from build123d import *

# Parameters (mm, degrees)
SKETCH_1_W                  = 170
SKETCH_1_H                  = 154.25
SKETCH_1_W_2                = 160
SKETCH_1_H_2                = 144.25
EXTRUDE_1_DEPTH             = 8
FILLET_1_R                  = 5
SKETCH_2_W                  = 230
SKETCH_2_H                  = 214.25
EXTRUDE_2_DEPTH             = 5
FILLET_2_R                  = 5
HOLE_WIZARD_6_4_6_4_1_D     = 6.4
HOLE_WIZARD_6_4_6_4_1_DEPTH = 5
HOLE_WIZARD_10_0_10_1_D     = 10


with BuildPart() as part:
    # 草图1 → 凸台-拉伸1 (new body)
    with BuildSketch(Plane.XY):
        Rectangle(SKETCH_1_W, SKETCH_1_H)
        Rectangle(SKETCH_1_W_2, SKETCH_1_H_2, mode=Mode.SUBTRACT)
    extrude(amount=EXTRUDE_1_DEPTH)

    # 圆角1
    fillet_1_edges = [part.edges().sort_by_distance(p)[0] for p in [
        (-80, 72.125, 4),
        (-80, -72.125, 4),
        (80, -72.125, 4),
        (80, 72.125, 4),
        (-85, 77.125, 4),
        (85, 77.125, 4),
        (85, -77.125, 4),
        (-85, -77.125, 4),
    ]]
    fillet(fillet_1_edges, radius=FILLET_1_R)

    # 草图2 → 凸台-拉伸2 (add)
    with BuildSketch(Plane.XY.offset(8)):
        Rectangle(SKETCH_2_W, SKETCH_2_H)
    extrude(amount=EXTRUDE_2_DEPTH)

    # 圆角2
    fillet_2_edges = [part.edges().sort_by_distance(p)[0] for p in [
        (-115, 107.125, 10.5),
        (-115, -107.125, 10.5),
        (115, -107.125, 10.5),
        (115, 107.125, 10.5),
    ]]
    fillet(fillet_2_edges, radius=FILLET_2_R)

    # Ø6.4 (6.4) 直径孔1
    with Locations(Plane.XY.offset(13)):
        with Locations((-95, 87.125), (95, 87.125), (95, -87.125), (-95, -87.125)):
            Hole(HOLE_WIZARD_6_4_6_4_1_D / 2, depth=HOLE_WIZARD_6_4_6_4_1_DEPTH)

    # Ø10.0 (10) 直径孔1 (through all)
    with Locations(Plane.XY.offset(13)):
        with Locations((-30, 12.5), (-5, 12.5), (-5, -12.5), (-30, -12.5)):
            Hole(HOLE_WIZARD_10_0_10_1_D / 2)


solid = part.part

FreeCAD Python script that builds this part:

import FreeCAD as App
import Part
import Sketcher
Q = App.Units.Quantity


def edges_at(feature, points):
    """Names of the edges that pass closest to the given points."""
    edges = feature.Shape.Edges
    near = lambda p: min(range(len(edges)), key=lambda i: edges[i].distToShape(Part.Vertex(*p))[0])
    return sorted({f"Edge{near(p) + 1}" for p in points})

doc = App.newDocument("Part")
body = doc.addObject("PartDesign::Body", "Body")

sketch1 = doc.addObject("Sketcher::SketchObject", "Sketch")
body.addObject(sketch1)
sketch1.AttachmentSupport = (doc.XY_Plane, [""])
sketch1.MapMode = "FlatFace"
sketch1.addGeometry([
    Part.LineSegment(App.Vector(-85, 77, 0), App.Vector(-85, -77, 0)),
    Part.LineSegment(App.Vector(-85, -77, 0), App.Vector(85, -77, 0)),
    Part.LineSegment(App.Vector(85, -77, 0), App.Vector(85, 77, 0)),
    Part.LineSegment(App.Vector(85, 77, 0), App.Vector(-85, 77, 0)),
    Part.LineSegment(App.Vector(80, -72, 0), App.Vector(-80, -72, 0)),
    Part.LineSegment(App.Vector(-80, -72, 0), App.Vector(-80, 72, 0)),
    Part.LineSegment(App.Vector(-80, 72, 0), App.Vector(80, 72, 0)),
    Part.LineSegment(App.Vector(80, 72, 0), App.Vector(80, -72, 0)),
], False)
sketch1.addConstraint([
    Sketcher.Constraint("Coincident", 0, 2, 1, 1),
    Sketcher.Constraint("Coincident", 1, 2, 2, 1),
    Sketcher.Constraint("Coincident", 2, 2, 3, 1),
    Sketcher.Constraint("Coincident", 3, 2, 0, 1),
    Sketcher.Constraint("Coincident", 4, 2, 5, 1),
    Sketcher.Constraint("Coincident", 5, 2, 6, 1),
    Sketcher.Constraint("Coincident", 6, 2, 7, 1),
    Sketcher.Constraint("Coincident", 7, 2, 4, 1),
    Sketcher.Constraint("Vertical", 0),
    Sketcher.Constraint("Horizontal", 1),
    Sketcher.Constraint("Vertical", 2),
    Sketcher.Constraint("Horizontal", 3),
    Sketcher.Constraint("Horizontal", 4),
    Sketcher.Constraint("Vertical", 5),
    Sketcher.Constraint("Horizontal", 6),
    Sketcher.Constraint("Vertical", 7),
    Sketcher.Constraint("Symmetric", 0, 2, 2, 2, -1, 1),
    Sketcher.Constraint("Symmetric", 4, 2, 6, 2, -1, 1),
    Sketcher.Constraint("DistanceX", 1, 1, 1, 2, Q("170 mm")),
    Sketcher.Constraint("DistanceX", 4, 2, 4, 1, Q("160 mm")),
    Sketcher.Constraint("DistanceY", 0, 2, 4, 2, Q("5 mm")),
    Sketcher.Constraint("DistanceY", 0, 2, 0, 1, Q("154.25 mm")),
])
pad1 = doc.addObject("PartDesign::Pad", "Pad")
body.addObject(pad1)
pad1.Profile = sketch1
pad1.Length = 8
doc.recompute()

fillet = doc.addObject("PartDesign::Fillet", "Fillet")
body.addObject(fillet)
fillet.Base = (pad1, edges_at(pad1, [
    (-80, 72.125, 4),
    (-80, -72.125, 4),
    (80, -72.125, 4),
    (80, 72.125, 4),
    (-85, 77.125, 4),
    (85, 77.125, 4),
    (85, -77.125, 4),
    (-85, -77.125, 4),
]))
fillet.Radius = 5

sketch2 = doc.addObject("Sketcher::SketchObject", "Sketch001")
body.addObject(sketch2)
sketch2.AttachmentSupport = (doc.XY_Plane, [""])
sketch2.MapMode = "FlatFace"
sketch2.AttachmentOffset = App.Placement(App.Vector(0, 0, 8), App.Rotation())
sketch2.addGeometry([
    Part.LineSegment(App.Vector(-115, 107, 0), App.Vector(-115, -107, 0)),
    Part.LineSegment(App.Vector(-115, -107, 0), App.Vector(115, -107, 0)),
    Part.LineSegment(App.Vector(115, -107, 0), App.Vector(115, 107, 0)),
    Part.LineSegment(App.Vector(115, 107, 0), App.Vector(-115, 107, 0)),
], False)
sketch2.addConstraint([
    Sketcher.Constraint("Coincident", 0, 2, 1, 1),
    Sketcher.Constraint("Coincident", 1, 2, 2, 1),
    Sketcher.Constraint("Coincident", 2, 2, 3, 1),
    Sketcher.Constraint("Coincident", 3, 2, 0, 1),
    Sketcher.Constraint("Vertical", 0),
    Sketcher.Constraint("Horizontal", 1),
    Sketcher.Constraint("Vertical", 2),
    Sketcher.Constraint("Horizontal", 3),
    Sketcher.Constraint("Symmetric", 0, 2, 2, 2, -1, 1),
    Sketcher.Constraint("DistanceX", 1, 1, 1, 2, Q("230 mm")),
    Sketcher.Constraint("DistanceY", 0, 2, 0, 1, Q("214.25 mm")),
])
pad2 = doc.addObject("PartDesign::Pad", "Pad001")
body.addObject(pad2)
pad2.Profile = sketch2
pad2.Length = 5
doc.recompute()

fillet2 = doc.addObject("PartDesign::Fillet", "Fillet001")
body.addObject(fillet2)
fillet2.Base = (pad2, edges_at(pad2, [
    (-115, 107.125, 10.5),
    (-115, -107.125, 10.5),
    (115, -107.125, 10.5),
    (115, 107.125, 10.5),
]))
fillet2.Radius = 5

sketch3 = doc.addObject("Sketcher::SketchObject", "Sketch002")
body.addObject(sketch3)
sketch3.AttachmentSupport = (doc.XY_Plane, [""])
sketch3.MapMode = "FlatFace"
sketch3.AttachmentOffset = App.Placement(App.Vector(0, 0, 13), App.Rotation())
sketch3.addGeometry([
    Part.Circle(App.Vector(-95, 87.1, 0), App.Vector(0, 0, 1), 3.2),
    Part.Circle(App.Vector(95, 87.1, 0), App.Vector(0, 0, 1), 3.2),
    Part.Circle(App.Vector(95, -87.1, 0), App.Vector(0, 0, 1), 3.2),
    Part.Circle(App.Vector(-95, -87.1, 0), App.Vector(0, 0, 1), 3.2),
], False)
sketch3.addConstraint([
    Sketcher.Constraint("Equal", 0, 1),
    Sketcher.Constraint("Equal", 1, 2),
    Sketcher.Constraint("Equal", 2, 3),
    Sketcher.Constraint("Symmetric", 0, 3, 2, 3, -1, 1),
    Sketcher.Constraint("Symmetric", 1, 3, 3, 3, -1, 1),
    Sketcher.Constraint("Symmetric", 0, 3, 1, 3, -2),
    Sketcher.Constraint("Diameter", 0, Q("6.4 mm")),
    Sketcher.Constraint("DistanceX", 0, 3, -1, 1, Q("95 mm")),
    Sketcher.Constraint("DistanceY", 2, 3, 1, 3, Q("174.25 mm")),
])
doc.recompute()
hole = doc.addObject("PartDesign::Hole", "Hole")
body.addObject(hole)
hole.Profile = sketch3
hole.ThreadType = "None"
hole.Diameter = 6.4
hole.DepthType = "Dimension"
hole.Depth = 5
hole.DrillPoint = "Flat"

sketch4 = doc.addObject("Sketcher::SketchObject", "Sketch003")
body.addObject(sketch4)
sketch4.AttachmentSupport = (doc.XY_Plane, [""])
sketch4.MapMode = "FlatFace"
sketch4.AttachmentOffset = App.Placement(App.Vector(0, 0, 13), App.Rotation())
sketch4.addGeometry([
    Part.Circle(App.Vector(-30, 12, 0), App.Vector(0, 0, 1), 5),
    Part.Circle(App.Vector(-5, 12, 0), App.Vector(0, 0, 1), 5),
    Part.Circle(App.Vector(-5, -12, 0), App.Vector(0, 0, 1), 5),
    Part.Circle(App.Vector(-30, -12, 0), App.Vector(0, 0, 1), 5),
], False)
sketch4.addConstraint([
    Sketcher.Constraint("Equal", 0, 1),
    Sketcher.Constraint("Equal", 1, 2),
    Sketcher.Constraint("Equal", 2, 3),
    Sketcher.Constraint("Symmetric", 1, 3, 2, 3, -1),
    Sketcher.Constraint("Symmetric", 0, 3, 3, 3, -1),
    Sketcher.Constraint("Horizontal", 0, 3, 1, 3),
    Sketcher.Constraint("Diameter", 0, Q("10 mm")),
    Sketcher.Constraint("DistanceX", 0, 3, -1, 1, Q("30 mm")),
    Sketcher.Constraint("DistanceX", 1, 3, -1, 1, Q("5 mm")),
    Sketcher.Constraint("DistanceY", 2, 3, 1, 3, Q("25 mm")),
])
doc.recompute()
hole2 = doc.addObject("PartDesign::Hole", "Hole001")
body.addObject(hole2)
hole2.Profile = sketch4
hole2.ThreadType = "None"
hole2.Diameter = 10
hole2.DepthType = "ThroughAll"

doc.recompute()
